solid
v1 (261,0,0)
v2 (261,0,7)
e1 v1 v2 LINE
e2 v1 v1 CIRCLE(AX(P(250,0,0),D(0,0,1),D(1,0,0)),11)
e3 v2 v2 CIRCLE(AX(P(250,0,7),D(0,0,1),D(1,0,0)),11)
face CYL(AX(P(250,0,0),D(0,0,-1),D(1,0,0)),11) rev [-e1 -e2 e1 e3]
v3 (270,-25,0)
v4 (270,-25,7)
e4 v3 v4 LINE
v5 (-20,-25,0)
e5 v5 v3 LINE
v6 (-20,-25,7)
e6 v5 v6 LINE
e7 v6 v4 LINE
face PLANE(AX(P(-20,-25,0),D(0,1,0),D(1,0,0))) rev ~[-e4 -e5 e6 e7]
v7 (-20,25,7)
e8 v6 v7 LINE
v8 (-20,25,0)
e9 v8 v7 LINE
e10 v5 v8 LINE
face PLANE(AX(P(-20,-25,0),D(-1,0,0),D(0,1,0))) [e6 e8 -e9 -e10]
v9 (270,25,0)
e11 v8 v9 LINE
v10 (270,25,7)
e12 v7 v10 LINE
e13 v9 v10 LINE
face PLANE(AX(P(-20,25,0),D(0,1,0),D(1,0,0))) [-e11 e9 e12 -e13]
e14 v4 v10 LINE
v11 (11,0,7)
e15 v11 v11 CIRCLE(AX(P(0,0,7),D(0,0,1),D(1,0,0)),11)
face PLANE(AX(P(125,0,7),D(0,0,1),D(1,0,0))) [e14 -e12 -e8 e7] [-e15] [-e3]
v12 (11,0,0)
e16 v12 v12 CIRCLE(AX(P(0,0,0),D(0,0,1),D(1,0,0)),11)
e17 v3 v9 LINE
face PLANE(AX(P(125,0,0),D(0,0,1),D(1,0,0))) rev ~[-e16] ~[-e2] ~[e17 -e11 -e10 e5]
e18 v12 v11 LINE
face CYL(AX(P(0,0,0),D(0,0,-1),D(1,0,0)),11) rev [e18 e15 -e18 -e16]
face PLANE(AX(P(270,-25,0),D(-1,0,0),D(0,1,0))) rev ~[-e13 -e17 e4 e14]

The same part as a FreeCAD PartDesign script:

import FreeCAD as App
import Part
import Sketcher

V = App.Vector
Q = App.Units.Quantity

doc = App.newDocument("Part")
params = doc.addObject("Spreadsheet::Sheet", "Params")
for row, (alias, value) in enumerate([
    ("sketch1_diameter", "22 mm"),
    ("sketch1_width", "290 mm"),
    ("sketch1_height", "50 mm"),
    ("pad1_length", "7 mm"),
], start=1):
    params.set(f"A{row}", alias)
    params.set(f"B{row}", "=" + value)
    params.setAlias(f"B{row}", alias)

body = doc.addObject("PartDesign::Body", "Body")

# Sketch on XY plane
sketch1 = body.newObject("Sketcher::SketchObject", "Sketch")
sketch1.AttachmentSupport = (doc.getObject("XY_Plane"), [""])
sketch1.MapMode = "FlatFace"
sketch1.addGeometry([
    Part.LineSegment(V(-20, 25, 0), V(-20, -25, 0)),  # 0
    Part.LineSegment(V(-20, -25, 0), V(270, -25, 0)),  # 1
    Part.LineSegment(V(270, -25, 0), V(270, 25, 0)),  # 2
    Part.LineSegment(V(270, 25, 0), V(-20, 25, 0)),  # 3
    Part.Circle(V(0, 0, 0), V(0, 0, 1), 11),  # 4
    Part.Circle(V(250, 0, 0), V(0, 0, 1), 11),  # 5
], False)
sketch1.addConstraint([
    Sketcher.Constraint("Coincident", 0, 2, 1, 1),
    Sketcher.Constraint("Coincident", 1, 2, 2, 1),
    Sketcher.Constraint("Coincident", 2, 2, 3, 1),
    Sketcher.Constraint("Coincident", 3, 2, 0, 1),
    Sketcher.Constraint("Vertical", 0),
    Sketcher.Constraint("Horizontal", 1),
    Sketcher.Constraint("Vertical", 2),
    Sketcher.Constraint("Horizontal", 3),
    Sketcher.Constraint("Coincident", 4, 3, -1, 1),
    Sketcher.Constraint("Equal", 4, 5),
    Sketcher.Constraint("PointOnObject", 5, 3, -1),
    Sketcher.Constraint("Diameter", 4, Q("22 mm")),
    Sketcher.Constraint("DistanceX", 1, 1, 1, 2, Q("290 mm")),
    Sketcher.Constraint("DistanceY", 0, 2, 0, 1, Q("50 mm")),
    Sketcher.Constraint("DistanceX", -1, 1, 5, 3, Q("250 mm")),
    Sketcher.Constraint("DistanceX", 0, 2, -1, 1, Q("20 mm")),
    Sketcher.Constraint("DistanceY", 0, 2, -1, 1, Q("25 mm")),
])
sketch1.setExpression("Constraints[11]", "Params.sketch1_diameter")
sketch1.setExpression("Constraints[12]", "Params.sketch1_width")
sketch1.setExpression("Constraints[13]", "Params.sketch1_height")
pad1 = body.newObject("PartDesign::Pad", "Pad")
pad1.Profile = sketch1
pad1.setExpression("Length", "Params.pad1_length")

doc.recompute()
